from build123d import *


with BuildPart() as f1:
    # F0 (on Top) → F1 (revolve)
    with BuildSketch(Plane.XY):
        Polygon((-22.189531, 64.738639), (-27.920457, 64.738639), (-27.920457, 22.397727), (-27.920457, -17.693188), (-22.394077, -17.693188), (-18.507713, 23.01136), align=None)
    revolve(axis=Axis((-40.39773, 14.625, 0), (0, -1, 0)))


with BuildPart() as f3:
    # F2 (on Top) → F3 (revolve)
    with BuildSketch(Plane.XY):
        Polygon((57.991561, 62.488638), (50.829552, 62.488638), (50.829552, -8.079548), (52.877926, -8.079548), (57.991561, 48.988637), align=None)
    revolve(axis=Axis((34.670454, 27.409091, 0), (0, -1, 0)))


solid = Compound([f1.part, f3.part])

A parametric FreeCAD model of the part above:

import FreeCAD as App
import Part
import Sketcher
Q = App.Units.Quantity


def add_polygon(sketch, points):
    """Adds a closed chain of lines whose ends are joined by coincident constraints."""
    first, n = sketch.GeometryCount, len(points)
    for a, b in zip(points, points[1:] + points[:1]):
        sketch.addGeometry(Part.LineSegment(App.Vector(*a, 0), App.Vector(*b, 0)), False)
    for i in range(n):
        sketch.addConstraint(Sketcher.Constraint("Coincident", first + i, 2, first + (i + 1) % n, 1))

doc = App.newDocument("Part")
body = doc.addObject("PartDesign::Body", "Body")

sketch1 = doc.addObject("Sketcher::SketchObject", "Sketch")
body.addObject(sketch1)
sketch1.AttachmentSupport = (doc.XY_Plane, [""])
sketch1.MapMode = "FlatFace"
add_polygon(sketch1, [(-22, 65), (-28, 65), (-28, -18), (-22, -18), (-19, 23)])
sketch1.addGeometry(Part.LineSegment(App.Vector(-40, 65, 0), App.Vector(-40, -18, 0)), True)
sketch1.addConstraint(Sketcher.Constraint("Horizontal", 0))
sketch1.addConstraint(Sketcher.Constraint("Vertical", 1))
sketch1.addConstraint(Sketcher.Constraint("Horizontal", 2))
sketch1.addConstraint(Sketcher.Constraint("Vertical", 5))
sketch1.addConstraint(Sketcher.Constraint("Horizontal", 4, 2, 5, 1))
sketch1.addConstraint(Sketcher.Constraint("Horizontal", 2, 2, 5, 2))
sketch1.addConstraint(Sketcher.Constraint("DistanceX", 2, 1, 2, 2, Q("5.52638 mm")))
sketch1.addConstraint(Sketcher.Constraint("DistanceX", 5, 1, 4, 2, Q("18.208199 mm")))
sketch1.addConstraint(Sketcher.Constraint("DistanceX", 0, 2, 0, 1, Q("5.730926 mm")))
sketch1.addConstraint(Sketcher.Constraint("DistanceY", 1, 2, 1, 1, Q("82.431827 mm")))
sketch1.addConstraint(Sketcher.Constraint("DistanceY", -1, 1, 0, 2, Q("64.738639 mm")))
sketch1.addConstraint(Sketcher.Constraint("DistanceY", -1, 1, 3, 2, Q("23.01136 mm")))
sketch1.addConstraint(Sketcher.Constraint("DistanceX", 4, 2, -1, 1, Q("22.189531 mm")))
sketch1.addConstraint(Sketcher.Constraint("Distance", 3, Q("40.889657 mm")))
revolution = doc.addObject("PartDesign::Revolution", "Revolution")
body.addObject(revolution)
revolution.Profile = sketch1
revolution.ReferenceAxis = (sketch1, ["Axis0"])
revolution.Angle = 360
body2 = doc.addObject("PartDesign::Body", "Body001")

sketch2 = doc.addObject("Sketcher::SketchObject", "Sketch001")
body2.addObject(sketch2)
sketch2.AttachmentSupport = (doc.getObject("XY_Plane001"), [""])
sketch2.MapMode = "FlatFace"
add_polygon(sketch2, [(58, 62.5), (50.8, 62.5), (50.8, -8.1), (52.9, -8.1), (58, 49)])
sketch2.addGeometry(Part.LineSegment(App.Vector(34.7, 62.5, 0), App.Vector(34.7, -8.1, 0)), True)
sketch2.addConstraint(Sketcher.Constraint("Horizontal", 0))
sketch2.addConstraint(Sketcher.Constraint("Vertical", 1))
sketch2.addConstraint(Sketcher.Constraint("Horizontal", 2))
sketch2.addConstraint(Sketcher.Constraint("Vertical", 4))
sketch2.addConstraint(Sketcher.Constraint("Vertical", 5))
sketch2.addConstraint(Sketcher.Constraint("Horizontal", 4, 2, 5, 1))
sketch2.addConstraint(Sketcher.Constraint("Horizontal", 2, 2, 5, 2))
sketch2.addConstraint(Sketcher.Constraint("DistanceY", 4, 1, 4, 2, Q("13.500001 mm")))
sketch2.addConstraint(Sketcher.Constraint("DistanceX", 0, 2, 0, 1, Q("7.162009 mm")))
sketch2.addConstraint(Sketcher.Constraint("DistanceX", 5, 1, 0, 2, Q("16.159098 mm")))
sketch2.addConstraint(Sketcher.Constraint("DistanceX", 2, 1, 2, 2, Q("2.048374 mm")))
sketch2.addConstraint(Sketcher.Constraint("DistanceY", 1, 2, 1, 1, Q("70.568186 mm")))
sketch2.addConstraint(Sketcher.Constraint("DistanceY", -1, 1, 0, 2, Q("62.488638 mm")))
sketch2.addConstraint(Sketcher.Constraint("DistanceX", -1, 1, 3, 2, Q("57.991561 mm")))
revolution2 = doc.addObject("PartDesign::Revolution", "Revolution001")
body2.addObject(revolution2)
revolution2.Profile = sketch2
revolution2.ReferenceAxis = (sketch2, ["Axis0"])
revolution2.Angle = 360

doc.recompute()
